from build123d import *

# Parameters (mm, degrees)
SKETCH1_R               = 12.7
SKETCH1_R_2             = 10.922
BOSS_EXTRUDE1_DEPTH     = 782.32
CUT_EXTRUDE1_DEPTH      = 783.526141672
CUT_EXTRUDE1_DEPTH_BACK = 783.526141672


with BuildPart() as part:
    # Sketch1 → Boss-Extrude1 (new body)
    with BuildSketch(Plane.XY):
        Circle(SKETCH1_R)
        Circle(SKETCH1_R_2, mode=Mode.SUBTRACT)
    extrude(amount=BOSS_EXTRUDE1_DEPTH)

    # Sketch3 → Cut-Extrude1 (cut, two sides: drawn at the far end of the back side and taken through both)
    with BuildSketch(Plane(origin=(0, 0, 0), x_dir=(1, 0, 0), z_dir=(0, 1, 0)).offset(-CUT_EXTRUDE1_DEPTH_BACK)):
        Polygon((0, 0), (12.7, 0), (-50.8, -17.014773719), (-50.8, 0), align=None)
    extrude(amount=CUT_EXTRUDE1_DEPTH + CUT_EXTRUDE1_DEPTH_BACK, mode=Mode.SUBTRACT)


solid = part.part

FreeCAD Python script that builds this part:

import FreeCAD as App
import Part
import Sketcher
from FreeCAD import Vector
Q = App.Units.Quantity

doc = App.newDocument("Part")
body = doc.addObject("PartDesign::Body", "Body")

# Sketch on XY plane
sketch1 = body.newObject("Sketcher::SketchObject", "Sketch")
sketch1.AttachmentSupport = (doc.getObject("XY_Plane"), [""])
sketch1.MapMode = "FlatFace"
sketch1.addGeometry(Part.Circle(Vector(0, 0, 0), Vector(0, 0, 1), 12.7), False)
sketch1.addGeometry(Part.Circle(Vector(0, 0, 0), Vector(0, 0, 1), 10.922), False)
sketch1.addConstraint(Sketcher.Constraint("Coincident", 0, 3, -1, 1))
sketch1.addConstraint(Sketcher.Constraint("Coincident", 1, 3, -1, 1))
sketch1.addConstraint(Sketcher.Constraint("Diameter", 0, Q("1 in")))
sketch1.addConstraint(Sketcher.Constraint("Diameter", 1, Q("0.86 in")))
pad1 = body.newObject("PartDesign::Pad", "Pad")
pad1.Profile = sketch1
pad1.Length = Q("30.8 in")

# Sketch on XZ plane
sketch2 = body.newObject("Sketcher::SketchObject", "Sketch001")
sketch2.AttachmentSupport = (doc.getObject("XZ_Plane"), [""])
sketch2.MapMode = "FlatFace"
sketch2.addGeometry(Part.LineSegment(Vector(12.7, 0, 0), Vector(-50.8, 0, 0)), False)
sketch2.addGeometry(Part.LineSegment(Vector(-50.8, 0, 0), Vector(-50.8, 17.014774, 0)), False)
sketch2.addGeometry(Part.LineSegment(Vector(-50.8, 17.014774, 0), Vector(12.7, 0, 0)), False)
sketch2.addConstraint(Sketcher.Constraint("Coincident", 0, 2, 1, 1))
sketch2.addConstraint(Sketcher.Constraint("Coincident", 1, 2, 2, 1))
sketch2.addConstraint(Sketcher.Constraint("Coincident", 2, 2, 0, 1))
sketch2.addConstraint(Sketcher.Constraint("Horizontal", 0))
sketch2.addConstraint(Sketcher.Constraint("Vertical", 1))
sketch2.addConstraint(Sketcher.Constraint("PointOnObject", 0, 2, -1))
sketch2.addConstraint(Sketcher.Constraint("DistanceX", 0, 2, 0, 1, Q("2.5 in")))
sketch2.addConstraint(Sketcher.Constraint("DistanceX", 0, 2, -1, 1, Q("2 in")))
sketch2.addConstraint(Sketcher.Constraint("Angle", 2, Q("-15 deg")))
pocket1 = body.newObject("PartDesign::Pocket", "Pocket")
pocket1.Profile = sketch2
pocket1.Type = "ThroughAll"
pocket1.Midplane = True

doc.recompute()
